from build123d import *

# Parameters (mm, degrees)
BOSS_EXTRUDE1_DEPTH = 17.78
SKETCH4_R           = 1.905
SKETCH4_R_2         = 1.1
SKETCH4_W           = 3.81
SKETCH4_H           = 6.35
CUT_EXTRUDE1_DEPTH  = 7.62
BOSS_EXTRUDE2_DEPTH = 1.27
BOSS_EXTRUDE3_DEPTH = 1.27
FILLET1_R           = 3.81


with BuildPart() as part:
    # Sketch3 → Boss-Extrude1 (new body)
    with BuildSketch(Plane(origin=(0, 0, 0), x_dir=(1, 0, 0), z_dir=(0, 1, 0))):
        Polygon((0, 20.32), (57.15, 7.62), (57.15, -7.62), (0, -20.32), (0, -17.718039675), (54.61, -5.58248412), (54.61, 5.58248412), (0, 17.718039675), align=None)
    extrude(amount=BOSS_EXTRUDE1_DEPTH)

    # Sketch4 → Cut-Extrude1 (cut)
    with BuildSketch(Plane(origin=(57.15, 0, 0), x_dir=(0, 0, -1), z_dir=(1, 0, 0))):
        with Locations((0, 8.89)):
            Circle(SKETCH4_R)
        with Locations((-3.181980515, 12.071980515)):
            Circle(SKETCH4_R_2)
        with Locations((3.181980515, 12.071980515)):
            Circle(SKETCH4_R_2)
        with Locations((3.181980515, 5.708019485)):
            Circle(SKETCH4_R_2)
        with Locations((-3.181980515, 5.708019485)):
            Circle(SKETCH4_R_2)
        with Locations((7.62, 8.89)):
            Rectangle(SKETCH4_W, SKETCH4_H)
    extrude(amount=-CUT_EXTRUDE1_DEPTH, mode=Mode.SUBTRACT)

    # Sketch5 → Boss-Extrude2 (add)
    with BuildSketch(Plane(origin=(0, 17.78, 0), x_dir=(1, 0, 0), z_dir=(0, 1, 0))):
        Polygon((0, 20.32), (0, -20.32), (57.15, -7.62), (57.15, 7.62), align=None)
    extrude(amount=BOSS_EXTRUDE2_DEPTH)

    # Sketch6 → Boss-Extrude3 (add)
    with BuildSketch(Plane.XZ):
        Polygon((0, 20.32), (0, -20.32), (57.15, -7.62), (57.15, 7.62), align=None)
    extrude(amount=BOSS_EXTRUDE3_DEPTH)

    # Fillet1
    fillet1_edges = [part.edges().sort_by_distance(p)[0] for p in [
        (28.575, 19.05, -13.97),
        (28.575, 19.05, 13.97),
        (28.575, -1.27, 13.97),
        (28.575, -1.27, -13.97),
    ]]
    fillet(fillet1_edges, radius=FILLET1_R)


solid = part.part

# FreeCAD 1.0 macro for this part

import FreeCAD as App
import Part
import Sketcher
from FreeCAD import Vector
Q = App.Units.Quantity


def edges_at(feature, points):
    """Names of the edges that pass closest to the given points."""
    edges = feature.Shape.Edges
    near = lambda p: min(range(len(edges)), key=lambda i: edges[i].distToShape(Part.Vertex(*p))[0])
    return sorted({f"Edge{near(p) + 1}" for p in points})

doc = App.newDocument("Part")
body = doc.addObject("PartDesign::Body", "Body")

# Sketch on XZ plane
sketch1 = doc.addObject("Sketcher::SketchObject", "Sketch")
body.addObject(sketch1)
sketch1.AttachmentSupport = (doc.XZ_Plane, [""])
sketch1.MapMode = "FlatFace"
sketch1.addGeometry([
    Part.LineSegment(Vector(57.1, -7.6, 0), Vector(0, -20.3, 0)),  # 0
    Part.LineSegment(Vector(0, -20.3, 0), Vector(0, -17.7, 0)),  # 1
    Part.LineSegment(Vector(0, -17.7, 0), Vector(54.6, -5.6, 0)),  # 2
    Part.LineSegment(Vector(54.6, -5.6, 0), Vector(54.6, 5.6, 0)),  # 3
    Part.LineSegment(Vector(54.6, 5.6, 0), Vector(0, 17.7, 0)),  # 4
    Part.LineSegment(Vector(0, 17.7, 0), Vector(0, 20.3, 0)),  # 5
    Part.LineSegment(Vector(0, 20.3, 0), Vector(57.1, 7.6, 0)),  # 6
    Part.LineSegment(Vector(57.1, 7.6, 0), Vector(57.1, -7.6, 0)),  # 7
], False)
sketch1.addConstraint([
    Sketcher.Constraint("Coincident", 0, 2, 1, 1),
    Sketcher.Constraint("Coincident", 1, 2, 2, 1),
    Sketcher.Constraint("Coincident", 2, 2, 3, 1),
    Sketcher.Constraint("Coincident", 3, 2, 4, 1),
    Sketcher.Constraint("Coincident", 4, 2, 5, 1),
    Sketcher.Constraint("Coincident", 5, 2, 6, 1),
    Sketcher.Constraint("Coincident", 6, 2, 7, 1),
    Sketcher.Constraint("Coincident", 7, 2, 0, 1),
    Sketcher.Constraint("Vertical", 1),
    Sketcher.Constraint("Vertical", 3),
    Sketcher.Constraint("Vertical", 5),
    Sketcher.Constraint("Vertical", 7),
    Sketcher.Constraint("Symmetric", 1, 2, 4, 2, -1, 1),
    Sketcher.Constraint("Symmetric", 0, 2, 5, 2, -1),
    Sketcher.Constraint("Parallel", 0, 2),
    Sketcher.Constraint("Parallel", 4, 6),
    Sketcher.Constraint("Equal", 2, 4),
    Sketcher.Constraint("DistanceY", 7, 2, 7, 1, Q("0.6 in")),
    Sketcher.Constraint("DistanceY", 0, 2, -1, 1, Q("0.8 in")),
    Sketcher.Constraint("DistanceX", 3, 2, 6, 2, Q("0.1 in")),
    Sketcher.Constraint("DistanceX", -1, 1, 2, 2, Q("2.15 in")),
    Sketcher.Constraint("DistanceY", 1, 1, 1, 2, 2.60196),
])
pad1 = doc.addObject("PartDesign::Pad", "Pad")
body.addObject(pad1)
pad1.Profile = sketch1
pad1.Length = Q("0.7 in")
pad1.Reversed = True

# Sketch on YZ plane
sketch2 = doc.addObject("Sketcher::SketchObject", "Sketch001")
body.addObject(sketch2)
sketch2.AttachmentSupport = (doc.YZ_Plane, [""])
sketch2.MapMode = "FlatFace"
sketch2.AttachmentOffset = App.Placement(Vector(0, 0, 2.25 * 25.4), App.Rotation())
sketch2.addGeometry([
    Part.Circle(Vector(8.9, 0, 0), Vector(0, 0, 1), 1.9),  # 0
    Part.Circle(Vector(12.1, 3.2, 0), Vector(0, 0, 1), 1.1),  # 1
    Part.Circle(Vector(12.1, -3.2, 0), Vector(0, 0, 1), 1.1),  # 2
    Part.Circle(Vector(5.7, -3.2, 0), Vector(0, 0, 1), 1.1),  # 3
    Part.Circle(Vector(5.7, 3.2, 0), Vector(0, 0, 1), 1.1),  # 4
    Part.LineSegment(Vector(12.1, -5.7, 0), Vector(5.7, -5.7, 0)),  # 5
    Part.LineSegment(Vector(5.7, -5.7, 0), Vector(5.7, -9.5, 0)),  # 6
    Part.LineSegment(Vector(5.7, -9.5, 0), Vector(12.1, -9.5, 0)),  # 7
    Part.LineSegment(Vector(12.1, -9.5, 0), Vector(12.1, -5.7, 0)),  # 8
], False)
sketch2.addConstraint([
    Sketcher.Constraint("Coincident", 5, 2, 6, 1),
    Sketcher.Constraint("Coincident", 6, 2, 7, 1),
    Sketcher.Constraint("Coincident", 7, 2, 8, 1),
    Sketcher.Constraint("Coincident", 8, 2, 5, 1),
    Sketcher.Constraint("Horizontal", 5),
    Sketcher.Constraint("Vertical", 6),
    Sketcher.Constraint("Horizontal", 7),
    Sketcher.Constraint("Vertical", 8),
    Sketcher.Constraint("Equal", 1, 2),
    Sketcher.Constraint("Equal", 2, 3),
    Sketcher.Constraint("Equal", 3, 4),
    Sketcher.Constraint("Symmetric", 1, 3, 2, 3, -1),
    Sketcher.Constraint("Symmetric", 3, 3, 4, 3, -1),
    Sketcher.Constraint("PointOnObject", 0, 3, -1),
    Sketcher.Constraint("Horizontal", 2, 3, 3, 3),
    Sketcher.Constraint("Diameter", 0, Q("0.15 in")),
    Sketcher.Constraint("DistanceX", 5, 2, 5, 1, Q("0.25 in")),
    Sketcher.Constraint("DistanceY", 6, 2, 6, 1, Q("0.15 in")),
    Sketcher.Constraint("Diameter", 1, 2.2),
    Sketcher.Constraint("DistanceX", -1, 1, 0, 3, Q("0.35 in")),
    Sketcher.Constraint("DistanceX", -1, 1, 5, 2, Q("0.225 in")),
    Sketcher.Constraint("DistanceY", 5, 2, -1, 1, Q("0.225 in")),
    Sketcher.Constraint("DistanceX", -1, 1, 1, 3, 12.071981),
    Sketcher.Constraint("DistanceY", -1, 1, 1, 3, 3.181981),
    Sketcher.Constraint("DistanceX", -1, 1, 3, 3, 5.708019),
])
pocket1 = doc.addObject("PartDesign::Pocket", "Pocket")
body.addObject(pocket1)
pocket1.Profile = sketch2
pocket1.Length = Q("0.3 in")

# Sketch on XZ plane
sketch3 = doc.addObject("Sketcher::SketchObject", "Sketch002")
body.addObject(sketch3)
sketch3.AttachmentSupport = (doc.XZ_Plane, [""])
sketch3.MapMode = "FlatFace"
sketch3.AttachmentOffset = App.Placement(Vector(0, 0, -0.7 * 25.4), App.Rotation())
sketch3.addGeometry([
    Part.LineSegment(Vector(0, -20, 0), Vector(0, 20, 0)),
    Part.LineSegment(Vector(0, 20, 0), Vector(57, 8, 0)),
    Part.LineSegment(Vector(57, 8, 0), Vector(57, -8, 0)),
    Part.LineSegment(Vector(57, -8, 0), Vector(0, -20, 0)),
], False)
sketch3.addConstraint([
    Sketcher.Constraint("Coincident", 0, 2, 1, 1),
    Sketcher.Constraint("Coincident", 1, 2, 2, 1),
    Sketcher.Constraint("Coincident", 2, 2, 3, 1),
    Sketcher.Constraint("Coincident", 3, 2, 0, 1),
    Sketcher.Constraint("Vertical", 0),
    Sketcher.Constraint("Vertical", 2),
    Sketcher.Constraint("Symmetric", 0, 2, 3, 2, -1, 1),
    Sketcher.Constraint("Equal", 1, 3),
    Sketcher.Constraint("DistanceY", 0, 1, 0, 2, Q("1.6 in")),
    Sketcher.Constraint("DistanceY", 2, 2, 2, 1, Q("0.6 in")),
    Sketcher.Constraint("DistanceX", -1, 1, 1, 2, Q("2.25 in")),
])
pad2 = doc.addObject("PartDesign::Pad", "Pad001")
body.addObject(pad2)
pad2.Profile = sketch3
pad2.Length = Q("0.05 in")
pad2.Reversed = True

# Sketch on XZ plane
sketch4 = doc.addObject("Sketcher::SketchObject", "Sketch003")
body.addObject(sketch4)
sketch4.AttachmentSupport = (doc.XZ_Plane, [""])
sketch4.MapMode = "FlatFace"
sketch4.addGeometry([
    Part.LineSegment(Vector(0, 20, 0), Vector(0, -20, 0)),
    Part.LineSegment(Vector(0, -20, 0), Vector(57, -8, 0)),
    Part.LineSegment(Vector(57, -8, 0), Vector(57, 8, 0)),
    Part.LineSegment(Vector(57, 8, 0), Vector(0, 20, 0)),
], False)
sketch4.addConstraint([
    Sketcher.Constraint("Coincident", 0, 2, 1, 1),
    Sketcher.Constraint("Coincident", 1, 2, 2, 1),
    Sketcher.Constraint("Coincident", 2, 2, 3, 1),
    Sketcher.Constraint("Coincident", 3, 2, 0, 1),
    Sketcher.Constraint("Vertical", 0),
    Sketcher.Constraint("Vertical", 2),
    Sketcher.Constraint("Symmetric", 0, 2, 3, 2, -1, 1),
    Sketcher.Constraint("Equal", 1, 3),
    Sketcher.Constraint("DistanceY", 0, 2, 0, 1, Q("1.6 in")),
    Sketcher.Constraint("DistanceY", 2, 1, 2, 2, Q("0.6 in")),
    Sketcher.Constraint("DistanceX", -1, 1, 1, 2, Q("2.25 in")),
])
pad3 = doc.addObject("PartDesign::Pad", "Pad002")
body.addObject(pad3)
pad3.Profile = sketch4
pad3.Length = Q("0.05 in")
doc.recompute()

fillet = doc.addObject("PartDesign::Fillet", "Fillet")
body.addObject(fillet)
fillet.Base = (pad3, edges_at(pad3, [
    (28.575, 19.05, -13.97),
    (28.575, 19.05, 13.97),
    (28.575, -1.27, 13.97),
    (28.575, -1.27, -13.97),
]))
fillet.Radius = Q("0.15 in")

doc.recompute()
